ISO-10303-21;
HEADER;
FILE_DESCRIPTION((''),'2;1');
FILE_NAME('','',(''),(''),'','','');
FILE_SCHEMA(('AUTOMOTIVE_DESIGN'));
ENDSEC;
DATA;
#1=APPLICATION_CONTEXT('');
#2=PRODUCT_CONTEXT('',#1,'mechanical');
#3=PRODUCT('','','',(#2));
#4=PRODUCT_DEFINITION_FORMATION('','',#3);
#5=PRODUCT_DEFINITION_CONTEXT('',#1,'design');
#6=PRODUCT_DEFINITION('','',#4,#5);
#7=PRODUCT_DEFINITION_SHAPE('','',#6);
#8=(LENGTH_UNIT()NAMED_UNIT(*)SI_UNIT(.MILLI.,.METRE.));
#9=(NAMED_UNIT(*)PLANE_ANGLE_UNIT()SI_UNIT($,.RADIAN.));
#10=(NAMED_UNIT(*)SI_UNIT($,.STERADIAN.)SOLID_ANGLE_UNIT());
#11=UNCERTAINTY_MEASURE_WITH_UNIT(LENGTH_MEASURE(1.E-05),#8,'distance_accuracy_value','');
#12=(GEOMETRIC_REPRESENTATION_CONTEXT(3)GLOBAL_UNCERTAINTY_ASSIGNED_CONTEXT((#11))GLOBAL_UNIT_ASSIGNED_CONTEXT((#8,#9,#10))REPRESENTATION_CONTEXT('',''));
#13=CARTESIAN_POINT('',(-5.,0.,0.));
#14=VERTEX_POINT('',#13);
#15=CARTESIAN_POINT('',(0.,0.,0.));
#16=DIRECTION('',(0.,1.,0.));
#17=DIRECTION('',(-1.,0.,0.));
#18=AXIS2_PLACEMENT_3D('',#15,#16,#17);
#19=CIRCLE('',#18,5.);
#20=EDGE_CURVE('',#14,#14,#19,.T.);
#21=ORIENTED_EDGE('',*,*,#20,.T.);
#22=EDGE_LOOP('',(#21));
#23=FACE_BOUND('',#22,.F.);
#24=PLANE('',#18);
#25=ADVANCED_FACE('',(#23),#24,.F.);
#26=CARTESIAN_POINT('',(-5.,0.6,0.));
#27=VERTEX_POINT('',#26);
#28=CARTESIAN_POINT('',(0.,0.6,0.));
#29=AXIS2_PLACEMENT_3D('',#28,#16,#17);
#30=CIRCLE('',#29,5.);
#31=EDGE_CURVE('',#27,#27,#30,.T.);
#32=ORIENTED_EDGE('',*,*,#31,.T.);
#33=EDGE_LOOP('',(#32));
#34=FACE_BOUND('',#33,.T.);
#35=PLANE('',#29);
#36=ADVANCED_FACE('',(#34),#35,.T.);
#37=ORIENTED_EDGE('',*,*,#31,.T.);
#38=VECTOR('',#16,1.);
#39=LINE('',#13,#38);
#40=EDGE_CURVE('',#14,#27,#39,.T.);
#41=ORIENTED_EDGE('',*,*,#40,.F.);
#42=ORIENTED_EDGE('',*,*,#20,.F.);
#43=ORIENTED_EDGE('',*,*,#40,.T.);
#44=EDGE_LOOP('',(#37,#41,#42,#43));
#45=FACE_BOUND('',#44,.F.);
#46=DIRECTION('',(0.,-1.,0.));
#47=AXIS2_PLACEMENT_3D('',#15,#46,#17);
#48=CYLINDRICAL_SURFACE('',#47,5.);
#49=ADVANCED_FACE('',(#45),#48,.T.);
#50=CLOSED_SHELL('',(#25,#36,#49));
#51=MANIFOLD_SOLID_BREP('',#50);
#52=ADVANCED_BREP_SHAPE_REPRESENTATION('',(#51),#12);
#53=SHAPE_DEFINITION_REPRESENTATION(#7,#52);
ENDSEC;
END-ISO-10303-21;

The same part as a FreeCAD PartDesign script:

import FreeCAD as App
import Part
import Sketcher
Q = App.Units.Quantity

doc = App.newDocument("Part")
params = doc.addObject("Spreadsheet::Sheet", "Params")
for row, (alias, value) in enumerate([
    ("sketch1_diameter", "10 mm"),
    ("pad1_length", "0.6 mm"),
], start=1):
    params.set(f"A{row}", alias)
    params.set(f"B{row}", "=" + value)
    params.setAlias(f"B{row}", alias)

body = doc.addObject("PartDesign::Body", "Body")

# Sketch on XZ plane
sketch1 = body.newObject("Sketcher::SketchObject", "Sketch")
sketch1.AttachmentSupport = (doc.getObject("XZ_Plane"), [""])
sketch1.MapMode = "FlatFace"
sketch1.addGeometry(Part.Circle(App.Vector(0, 0, 0), App.Vector(0, 0, 1), 5), False)
sketch1.addConstraint(Sketcher.Constraint("Coincident", 0, 3, -1, 1))
sketch1.addConstraint(Sketcher.Constraint("Diameter", 0, Q("10 mm")))
sketch1.setExpression("Constraints[1]", "Params.sketch1_diameter")
pad1 = body.newObject("PartDesign::Pad", "Pad")
pad1.Profile = sketch1
pad1.setExpression("Length", "Params.pad1_length")
pad1.Reversed = True

doc.recompute()
